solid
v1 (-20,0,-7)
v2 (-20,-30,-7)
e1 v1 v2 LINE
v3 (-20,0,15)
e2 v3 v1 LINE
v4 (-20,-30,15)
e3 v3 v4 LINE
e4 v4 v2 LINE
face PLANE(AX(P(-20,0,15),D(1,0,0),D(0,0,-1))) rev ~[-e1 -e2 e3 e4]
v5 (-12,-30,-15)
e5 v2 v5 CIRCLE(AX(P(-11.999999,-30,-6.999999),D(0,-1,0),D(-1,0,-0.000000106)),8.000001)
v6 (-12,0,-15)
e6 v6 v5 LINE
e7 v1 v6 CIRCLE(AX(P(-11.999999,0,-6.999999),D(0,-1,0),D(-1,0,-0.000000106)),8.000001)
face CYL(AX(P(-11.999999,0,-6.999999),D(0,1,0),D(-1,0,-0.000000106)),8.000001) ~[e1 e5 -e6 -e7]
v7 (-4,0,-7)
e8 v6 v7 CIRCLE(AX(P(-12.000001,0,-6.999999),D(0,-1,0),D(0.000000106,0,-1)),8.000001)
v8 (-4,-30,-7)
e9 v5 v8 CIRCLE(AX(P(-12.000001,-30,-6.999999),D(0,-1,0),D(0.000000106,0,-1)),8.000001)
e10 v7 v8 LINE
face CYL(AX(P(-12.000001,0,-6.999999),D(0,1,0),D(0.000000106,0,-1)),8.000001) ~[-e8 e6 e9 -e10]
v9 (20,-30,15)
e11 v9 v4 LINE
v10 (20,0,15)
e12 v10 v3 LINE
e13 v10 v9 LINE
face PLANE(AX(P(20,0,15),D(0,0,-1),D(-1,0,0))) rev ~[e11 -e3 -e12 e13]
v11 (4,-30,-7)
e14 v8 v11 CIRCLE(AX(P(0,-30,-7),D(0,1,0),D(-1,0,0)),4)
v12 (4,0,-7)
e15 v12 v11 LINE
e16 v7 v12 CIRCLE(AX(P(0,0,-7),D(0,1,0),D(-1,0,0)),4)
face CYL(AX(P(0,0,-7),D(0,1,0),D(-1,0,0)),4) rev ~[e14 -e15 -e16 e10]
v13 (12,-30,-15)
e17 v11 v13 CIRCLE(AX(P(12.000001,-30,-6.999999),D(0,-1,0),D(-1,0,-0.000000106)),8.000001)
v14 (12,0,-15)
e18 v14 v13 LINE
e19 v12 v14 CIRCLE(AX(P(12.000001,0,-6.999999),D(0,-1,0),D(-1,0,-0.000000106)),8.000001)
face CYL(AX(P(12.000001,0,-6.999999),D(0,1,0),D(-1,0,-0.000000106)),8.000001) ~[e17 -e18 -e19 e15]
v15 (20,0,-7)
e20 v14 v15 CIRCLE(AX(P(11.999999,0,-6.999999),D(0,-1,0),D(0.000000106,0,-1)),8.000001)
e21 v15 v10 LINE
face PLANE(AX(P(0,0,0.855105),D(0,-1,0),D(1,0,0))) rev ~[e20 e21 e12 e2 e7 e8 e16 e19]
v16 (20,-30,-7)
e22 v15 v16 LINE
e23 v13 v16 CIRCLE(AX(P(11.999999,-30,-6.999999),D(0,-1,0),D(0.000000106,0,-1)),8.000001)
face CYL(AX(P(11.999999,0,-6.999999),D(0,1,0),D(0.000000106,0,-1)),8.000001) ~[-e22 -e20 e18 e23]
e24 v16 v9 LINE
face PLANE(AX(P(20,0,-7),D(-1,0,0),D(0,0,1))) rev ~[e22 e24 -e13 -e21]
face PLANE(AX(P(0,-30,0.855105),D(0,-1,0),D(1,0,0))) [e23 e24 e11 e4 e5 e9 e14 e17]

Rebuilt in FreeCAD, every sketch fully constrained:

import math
import FreeCAD as App
import Part
import Sketcher

doc = App.newDocument("Part")
params = doc.addObject("Spreadsheet::Sheet", "Params")
for row, (alias, value) in enumerate([
    ("sketch1_radius", "8.000001 mm"),
    ("sketch1_radius2", "4 mm"),
    ("sketch1_height", "22 mm"),
    ("pad1_length", "30 mm"),
], start=1):
    params.set(f"A{row}", alias)
    params.set(f"B{row}", "=" + value)
    params.setAlias(f"B{row}", alias)

body = doc.addObject("PartDesign::Body", "Body")

sketch1 = body.newObject("Sketcher::SketchObject", "Sketch")
sketch1.AttachmentSupport = (doc.getObject("XZ_Plane"), [""])
sketch1.MapMode = "FlatFace"
sketch1.addGeometry(Part.ArcOfCircle(Part.Circle(App.Vector(-12, -7, 0), App.Vector(0, 0, 1), 8), math.radians(-180), math.radians(-90)), False)
sketch1.addGeometry(Part.ArcOfCircle(Part.Circle(App.Vector(-12, -7, 0), App.Vector(0, 0, 1), 8), math.radians(-90), math.radians(0)), False)
sketch1.addGeometry(Part.ArcOfCircle(Part.Circle(App.Vector(0, -7, 0), App.Vector(0, 0, 1), 4), math.radians(0), math.radians(180)), False)
sketch1.addGeometry(Part.ArcOfCircle(Part.Circle(App.Vector(12, -7, 0), App.Vector(0, 0, 1), 8), math.radians(-180), math.radians(-90)), False)
sketch1.addGeometry(Part.ArcOfCircle(Part.Circle(App.Vector(12, -7, 0), App.Vector(0, 0, 1), 8), math.radians(-90), math.radians(0)), False)
sketch1.addGeometry(Part.LineSegment(App.Vector(20, -7, 0), App.Vector(20, 15, 0)), False)
sketch1.addGeometry(Part.LineSegment(App.Vector(20, 15, 0), App.Vector(-20, 15, 0)), False)
sketch1.addGeometry(Part.LineSegment(App.Vector(-20, 15, 0), App.Vector(-20, -7, 0)), False)
sketch1.addConstraint(Sketcher.Constraint("Tangent", 0, 2, 1, 1))
sketch1.addConstraint(Sketcher.Constraint("Tangent", 1, 2, 2, 2))
sketch1.addConstraint(Sketcher.Constraint("Tangent", 2, 1, 3, 1))
sketch1.addConstraint(Sketcher.Constraint("Tangent", 3, 2, 4, 1))
sketch1.addConstraint(Sketcher.Constraint("Tangent", 4, 2, 5, 1))
sketch1.addConstraint(Sketcher.Constraint("Coincident", 5, 2, 6, 1))
sketch1.addConstraint(Sketcher.Constraint("Coincident", 6, 2, 7, 1))
sketch1.addConstraint(Sketcher.Constraint("Tangent", 7, 2, 0, 1))
sketch1.addConstraint(Sketcher.Constraint("Vertical", 5))
sketch1.addConstraint(Sketcher.Constraint("Horizontal", 6))
sketch1.addConstraint(Sketcher.Constraint("Vertical", 7))
sketch1.addConstraint(Sketcher.Constraint("Equal", 0, 1))
sketch1.addConstraint(Sketcher.Constraint("Equal", 1, 3))
sketch1.addConstraint(Sketcher.Constraint("Equal", 3, 4))
sketch1.addConstraint(Sketcher.Constraint("Symmetric", 0, 3, 3, 3, -2))
sketch1.addConstraint(Sketcher.Constraint("Horizontal", 1, 3, 2, 3))
sketch1.addConstraint(Sketcher.Constraint("Vertical", 1, 3, 0, 2))
sketch1.addConstraint(Sketcher.Constraint("Vertical", 4, 3, 3, 2))
sketch1.addConstraint(Sketcher.Constraint("Radius", 0, 8.000001))
sketch1.addConstraint(Sketcher.Constraint("Radius", 2, 4.0))
sketch1.addConstraint(Sketcher.Constraint("DistanceY", 5, 1, 5, 2, 22.0))
sketch1.addConstraint(Sketcher.Constraint("DistanceY", 0, 3, -1, 1, 6.999999))
sketch1.setExpression("Constraints[18]", "Params.sketch1_radius")
sketch1.setExpression("Constraints[19]", "Params.sketch1_radius2")
sketch1.setExpression("Constraints[20]", "Params.sketch1_height")
pad1 = body.newObject("PartDesign::Pad", "Pad")
pad1.Profile = sketch1
pad1.setExpression("Length", "Params.pad1_length")

doc.recompute()
